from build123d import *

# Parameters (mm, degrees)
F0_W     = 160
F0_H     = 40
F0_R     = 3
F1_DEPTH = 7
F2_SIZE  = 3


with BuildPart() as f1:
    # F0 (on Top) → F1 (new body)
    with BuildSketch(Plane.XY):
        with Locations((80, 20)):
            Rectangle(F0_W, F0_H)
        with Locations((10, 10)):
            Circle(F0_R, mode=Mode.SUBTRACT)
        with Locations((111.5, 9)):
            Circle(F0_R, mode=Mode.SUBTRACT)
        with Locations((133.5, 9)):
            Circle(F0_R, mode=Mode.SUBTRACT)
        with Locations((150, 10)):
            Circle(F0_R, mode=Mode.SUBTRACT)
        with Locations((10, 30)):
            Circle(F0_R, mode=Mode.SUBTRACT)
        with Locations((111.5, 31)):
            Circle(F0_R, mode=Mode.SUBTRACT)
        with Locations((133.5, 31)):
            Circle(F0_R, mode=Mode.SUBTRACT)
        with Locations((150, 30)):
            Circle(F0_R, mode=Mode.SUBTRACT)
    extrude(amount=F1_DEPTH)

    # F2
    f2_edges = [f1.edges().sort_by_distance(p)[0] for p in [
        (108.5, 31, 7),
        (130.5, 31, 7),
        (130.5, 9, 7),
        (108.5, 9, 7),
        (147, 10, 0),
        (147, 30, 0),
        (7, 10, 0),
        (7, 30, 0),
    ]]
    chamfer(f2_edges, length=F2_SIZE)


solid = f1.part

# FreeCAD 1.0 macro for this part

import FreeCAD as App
import Part
import Sketcher
from FreeCAD import Vector


def edges_at(feature, points):
    """Names of the edges that pass closest to the given points."""
    edges = feature.Shape.Edges
    near = lambda p: min(range(len(edges)), key=lambda i: edges[i].distToShape(Part.Vertex(*p))[0])
    return sorted({f"Edge{near(p) + 1}" for p in points})

doc = App.newDocument("Part")
body = doc.addObject("PartDesign::Body", "Body")

# Sketch on XY plane
sketch1 = doc.addObject("Sketcher::SketchObject", "Sketch")
body.addObject(sketch1)
sketch1.AttachmentSupport = (doc.XY_Plane, [""])
sketch1.MapMode = "FlatFace"
sketch1.addGeometry([
    Part.LineSegment(Vector(0, 40, 0), Vector(0, 0, 0)),  # 0
    Part.LineSegment(Vector(0, 0, 0), Vector(160, 0, 0)),  # 1
    Part.LineSegment(Vector(160, 0, 0), Vector(160, 40, 0)),  # 2
    Part.LineSegment(Vector(160, 40, 0), Vector(0, 40, 0)),  # 3
    Part.Circle(Vector(10, 10, 0), Vector(0, 0, 1), 3),  # 4
    Part.Circle(Vector(111.5, 9, 0), Vector(0, 0, 1), 3),  # 5
    Part.Circle(Vector(133.5, 9, 0), Vector(0, 0, 1), 3),  # 6
    Part.Circle(Vector(150, 10, 0), Vector(0, 0, 1), 3),  # 7
    Part.Circle(Vector(10, 30, 0), Vector(0, 0, 1), 3),  # 8
    Part.Circle(Vector(111.5, 31, 0), Vector(0, 0, 1), 3),  # 9
    Part.Circle(Vector(150, 30, 0), Vector(0, 0, 1), 3),  # 10
    Part.Circle(Vector(133.5, 31, 0), Vector(0, 0, 1), 3),  # 11
], False)
sketch1.addConstraint([
    Sketcher.Constraint("Coincident", 0, 2, 1, 1),
    Sketcher.Constraint("Coincident", 1, 2, 2, 1),
    Sketcher.Constraint("Coincident", 2, 2, 3, 1),
    Sketcher.Constraint("Coincident", 3, 2, 0, 1),
    Sketcher.Constraint("Vertical", 0),
    Sketcher.Constraint("Horizontal", 1),
    Sketcher.Constraint("Vertical", 2),
    Sketcher.Constraint("Horizontal", 3),
    Sketcher.Constraint("Coincident", 0, 2, -1, 1),
    Sketcher.Constraint("Equal", 4, 5),
    Sketcher.Constraint("Equal", 5, 6),
    Sketcher.Constraint("Equal", 6, 7),
    Sketcher.Constraint("Equal", 7, 8),
    Sketcher.Constraint("Equal", 8, 9),
    Sketcher.Constraint("Equal", 9, 10),
    Sketcher.Constraint("Equal", 10, 11),
    Sketcher.Constraint("Horizontal", 5, 3, 6, 3),
    Sketcher.Constraint("Horizontal", 4, 3, 7, 3),
    Sketcher.Constraint("Horizontal", 8, 3, 10, 3),
    Sketcher.Constraint("Horizontal", 9, 3, 11, 3),
    Sketcher.Constraint("Vertical", 4, 3, 8, 3),
    Sketcher.Constraint("Vertical", 5, 3, 9, 3),
    Sketcher.Constraint("Vertical", 7, 3, 10, 3),
    Sketcher.Constraint("Vertical", 6, 3, 11, 3),
    Sketcher.Constraint("Diameter", 4, 6.0),
    Sketcher.Constraint("DistanceX", 1, 1, 1, 2, 160.0),
    Sketcher.Constraint("DistanceY", 0, 2, 0, 1, 40.0),
    Sketcher.Constraint("DistanceX", -1, 1, 4, 3, 10.0),
    Sketcher.Constraint("DistanceY", -1, 1, 4, 3, 10.0),
    Sketcher.Constraint("DistanceY", -1, 1, 5, 3, 9.0),
    Sketcher.Constraint("DistanceX", -1, 1, 7, 3, 150.0),
    Sketcher.Constraint("DistanceY", -1, 1, 8, 3, 30.0),
    Sketcher.Constraint("DistanceY", -1, 1, 9, 3, 31.0),
    Sketcher.Constraint("DistanceX", 5, 3, 6, 3, 22.0),
    Sketcher.Constraint("DistanceX", -1, 1, 5, 3, 111.5),
])
pad1 = doc.addObject("PartDesign::Pad", "Pad")
body.addObject(pad1)
pad1.Profile = sketch1
pad1.Length = 7
doc.recompute()

chamfer = doc.addObject("PartDesign::Chamfer", "Chamfer")
body.addObject(chamfer)
chamfer.Base = (pad1, edges_at(pad1, [
    (108.5, 31, 7),
    (130.5, 31, 7),
    (130.5, 9, 7),
    (108.5, 9, 7),
    (147, 10, 0),
    (147, 30, 0),
    (7, 10, 0),
    (7, 30, 0),
]))
chamfer.Size = 3

doc.recompute()
